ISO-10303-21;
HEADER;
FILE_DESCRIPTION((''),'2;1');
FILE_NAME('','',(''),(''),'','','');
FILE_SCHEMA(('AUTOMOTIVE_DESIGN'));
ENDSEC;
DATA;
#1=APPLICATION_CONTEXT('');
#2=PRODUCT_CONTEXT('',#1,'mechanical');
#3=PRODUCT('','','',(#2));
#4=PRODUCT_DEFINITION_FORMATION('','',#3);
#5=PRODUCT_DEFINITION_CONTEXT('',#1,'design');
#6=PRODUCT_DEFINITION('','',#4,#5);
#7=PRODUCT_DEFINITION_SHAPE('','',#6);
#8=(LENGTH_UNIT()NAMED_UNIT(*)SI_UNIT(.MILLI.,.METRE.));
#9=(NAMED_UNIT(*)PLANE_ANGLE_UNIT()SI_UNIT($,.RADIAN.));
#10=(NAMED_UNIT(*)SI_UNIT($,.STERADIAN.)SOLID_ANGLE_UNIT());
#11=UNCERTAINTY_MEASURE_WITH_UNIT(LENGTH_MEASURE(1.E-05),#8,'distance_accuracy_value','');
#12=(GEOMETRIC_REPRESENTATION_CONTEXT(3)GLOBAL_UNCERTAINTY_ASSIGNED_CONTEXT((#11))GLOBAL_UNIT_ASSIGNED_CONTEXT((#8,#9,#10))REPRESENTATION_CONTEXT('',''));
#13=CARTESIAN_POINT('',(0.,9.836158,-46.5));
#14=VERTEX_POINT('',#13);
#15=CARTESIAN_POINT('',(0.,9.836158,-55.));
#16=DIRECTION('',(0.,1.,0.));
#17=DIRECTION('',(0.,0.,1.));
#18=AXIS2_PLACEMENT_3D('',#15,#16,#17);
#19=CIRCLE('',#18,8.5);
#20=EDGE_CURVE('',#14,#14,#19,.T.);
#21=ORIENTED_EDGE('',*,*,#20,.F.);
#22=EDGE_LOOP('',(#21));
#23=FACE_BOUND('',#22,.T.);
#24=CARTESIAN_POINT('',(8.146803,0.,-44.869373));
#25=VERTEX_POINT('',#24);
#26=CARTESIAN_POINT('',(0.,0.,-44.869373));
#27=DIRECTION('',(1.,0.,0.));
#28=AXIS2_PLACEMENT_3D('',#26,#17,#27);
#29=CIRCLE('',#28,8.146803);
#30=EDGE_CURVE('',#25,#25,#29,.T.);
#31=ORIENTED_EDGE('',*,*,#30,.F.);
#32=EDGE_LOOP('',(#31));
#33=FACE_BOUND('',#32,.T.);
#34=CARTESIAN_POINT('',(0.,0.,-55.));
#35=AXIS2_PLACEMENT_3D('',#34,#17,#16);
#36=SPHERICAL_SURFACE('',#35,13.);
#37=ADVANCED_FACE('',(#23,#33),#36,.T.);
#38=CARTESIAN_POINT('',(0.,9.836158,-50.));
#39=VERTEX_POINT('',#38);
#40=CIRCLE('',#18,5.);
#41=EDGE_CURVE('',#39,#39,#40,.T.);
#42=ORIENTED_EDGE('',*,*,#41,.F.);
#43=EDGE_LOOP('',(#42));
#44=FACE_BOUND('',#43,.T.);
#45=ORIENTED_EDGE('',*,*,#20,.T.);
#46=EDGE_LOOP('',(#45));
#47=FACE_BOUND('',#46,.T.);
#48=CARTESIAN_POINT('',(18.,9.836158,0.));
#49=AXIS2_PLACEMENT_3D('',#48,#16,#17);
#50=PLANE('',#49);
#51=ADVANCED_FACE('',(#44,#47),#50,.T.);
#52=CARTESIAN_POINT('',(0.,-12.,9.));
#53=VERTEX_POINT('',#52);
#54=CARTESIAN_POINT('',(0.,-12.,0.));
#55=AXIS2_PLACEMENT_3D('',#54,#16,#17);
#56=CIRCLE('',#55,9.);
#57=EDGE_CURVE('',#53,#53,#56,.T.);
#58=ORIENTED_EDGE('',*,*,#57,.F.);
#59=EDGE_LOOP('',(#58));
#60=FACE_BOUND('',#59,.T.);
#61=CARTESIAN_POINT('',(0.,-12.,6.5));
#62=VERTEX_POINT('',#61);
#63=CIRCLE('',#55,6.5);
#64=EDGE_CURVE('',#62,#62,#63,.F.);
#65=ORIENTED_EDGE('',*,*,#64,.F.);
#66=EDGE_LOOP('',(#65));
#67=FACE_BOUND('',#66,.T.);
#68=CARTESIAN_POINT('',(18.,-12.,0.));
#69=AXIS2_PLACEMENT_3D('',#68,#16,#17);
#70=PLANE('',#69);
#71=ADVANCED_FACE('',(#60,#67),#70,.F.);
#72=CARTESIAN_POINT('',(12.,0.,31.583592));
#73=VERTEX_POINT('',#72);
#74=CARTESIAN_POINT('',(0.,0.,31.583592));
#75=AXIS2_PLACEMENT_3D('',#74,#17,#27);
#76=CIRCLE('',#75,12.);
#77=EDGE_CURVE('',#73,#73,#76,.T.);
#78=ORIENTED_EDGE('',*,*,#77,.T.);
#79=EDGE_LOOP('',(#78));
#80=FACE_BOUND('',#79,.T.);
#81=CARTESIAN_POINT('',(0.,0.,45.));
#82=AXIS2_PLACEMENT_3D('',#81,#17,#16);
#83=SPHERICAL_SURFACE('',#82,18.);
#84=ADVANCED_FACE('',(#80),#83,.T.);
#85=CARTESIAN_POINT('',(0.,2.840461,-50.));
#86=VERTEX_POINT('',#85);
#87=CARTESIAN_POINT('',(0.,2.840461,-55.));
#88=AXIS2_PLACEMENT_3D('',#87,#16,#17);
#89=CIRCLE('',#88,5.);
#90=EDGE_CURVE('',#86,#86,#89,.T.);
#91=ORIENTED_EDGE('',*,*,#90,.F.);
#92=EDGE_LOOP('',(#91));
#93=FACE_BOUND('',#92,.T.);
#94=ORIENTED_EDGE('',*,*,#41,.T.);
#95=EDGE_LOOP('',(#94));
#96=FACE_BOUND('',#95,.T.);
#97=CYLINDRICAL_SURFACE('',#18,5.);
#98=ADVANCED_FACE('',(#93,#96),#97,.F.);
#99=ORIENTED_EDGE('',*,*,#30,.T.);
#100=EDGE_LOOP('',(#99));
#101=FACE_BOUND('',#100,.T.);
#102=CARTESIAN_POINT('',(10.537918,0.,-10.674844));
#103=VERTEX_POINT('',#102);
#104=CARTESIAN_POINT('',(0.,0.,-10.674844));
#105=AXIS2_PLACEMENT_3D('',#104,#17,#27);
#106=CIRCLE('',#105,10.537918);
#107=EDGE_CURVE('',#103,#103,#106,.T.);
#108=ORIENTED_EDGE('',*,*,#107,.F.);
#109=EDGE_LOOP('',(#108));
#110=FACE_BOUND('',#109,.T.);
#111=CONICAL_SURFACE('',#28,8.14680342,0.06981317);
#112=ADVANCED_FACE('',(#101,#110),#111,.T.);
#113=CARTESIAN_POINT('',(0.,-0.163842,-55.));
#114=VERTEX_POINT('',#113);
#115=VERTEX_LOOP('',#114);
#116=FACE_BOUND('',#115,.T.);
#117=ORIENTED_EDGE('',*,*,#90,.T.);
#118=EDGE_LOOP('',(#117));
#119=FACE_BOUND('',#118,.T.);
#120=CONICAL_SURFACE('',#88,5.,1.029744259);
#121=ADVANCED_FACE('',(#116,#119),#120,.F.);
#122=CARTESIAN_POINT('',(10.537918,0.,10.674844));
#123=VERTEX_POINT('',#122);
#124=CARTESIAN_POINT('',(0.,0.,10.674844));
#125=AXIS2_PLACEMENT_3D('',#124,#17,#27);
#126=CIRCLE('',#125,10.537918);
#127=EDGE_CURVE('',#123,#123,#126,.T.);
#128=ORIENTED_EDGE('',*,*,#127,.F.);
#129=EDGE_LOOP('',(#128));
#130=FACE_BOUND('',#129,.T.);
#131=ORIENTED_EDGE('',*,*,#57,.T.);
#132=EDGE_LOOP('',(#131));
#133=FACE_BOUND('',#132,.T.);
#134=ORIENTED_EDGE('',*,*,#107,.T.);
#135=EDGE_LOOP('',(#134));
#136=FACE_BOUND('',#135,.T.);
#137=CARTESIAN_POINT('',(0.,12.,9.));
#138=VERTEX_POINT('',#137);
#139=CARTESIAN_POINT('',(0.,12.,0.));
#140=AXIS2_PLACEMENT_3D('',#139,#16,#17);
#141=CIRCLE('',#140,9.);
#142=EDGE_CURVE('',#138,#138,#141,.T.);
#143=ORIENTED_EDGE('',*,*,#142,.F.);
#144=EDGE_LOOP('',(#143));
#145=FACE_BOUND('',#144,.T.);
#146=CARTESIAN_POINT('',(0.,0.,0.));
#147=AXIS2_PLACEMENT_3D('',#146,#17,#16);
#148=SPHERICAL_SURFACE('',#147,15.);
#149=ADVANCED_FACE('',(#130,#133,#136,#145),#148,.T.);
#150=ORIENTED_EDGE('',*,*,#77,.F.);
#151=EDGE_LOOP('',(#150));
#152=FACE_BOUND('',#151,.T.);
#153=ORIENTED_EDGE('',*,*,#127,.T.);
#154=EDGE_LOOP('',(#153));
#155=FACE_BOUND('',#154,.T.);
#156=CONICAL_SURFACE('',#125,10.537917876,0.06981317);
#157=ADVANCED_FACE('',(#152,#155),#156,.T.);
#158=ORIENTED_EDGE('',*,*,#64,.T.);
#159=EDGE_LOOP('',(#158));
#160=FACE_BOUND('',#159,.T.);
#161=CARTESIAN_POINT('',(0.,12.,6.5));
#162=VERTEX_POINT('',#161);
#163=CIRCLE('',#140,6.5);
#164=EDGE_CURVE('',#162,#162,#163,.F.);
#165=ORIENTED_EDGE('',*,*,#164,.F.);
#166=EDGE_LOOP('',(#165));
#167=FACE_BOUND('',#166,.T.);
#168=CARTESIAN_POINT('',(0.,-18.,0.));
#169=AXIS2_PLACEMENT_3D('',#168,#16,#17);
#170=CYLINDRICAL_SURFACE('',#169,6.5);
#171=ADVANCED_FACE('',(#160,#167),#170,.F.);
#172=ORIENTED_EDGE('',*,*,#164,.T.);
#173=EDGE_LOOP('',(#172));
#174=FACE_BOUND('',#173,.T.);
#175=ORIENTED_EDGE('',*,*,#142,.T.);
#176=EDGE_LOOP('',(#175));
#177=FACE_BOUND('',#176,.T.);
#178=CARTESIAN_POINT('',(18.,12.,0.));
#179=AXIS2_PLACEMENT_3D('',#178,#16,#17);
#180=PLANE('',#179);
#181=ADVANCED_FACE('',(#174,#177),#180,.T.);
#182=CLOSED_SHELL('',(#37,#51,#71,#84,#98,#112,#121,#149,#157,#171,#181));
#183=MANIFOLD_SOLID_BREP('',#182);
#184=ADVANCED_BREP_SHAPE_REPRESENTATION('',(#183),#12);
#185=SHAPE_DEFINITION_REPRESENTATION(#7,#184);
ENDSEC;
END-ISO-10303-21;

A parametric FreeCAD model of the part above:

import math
import FreeCAD as App
import Part
import Sketcher
from FreeCAD import Vector
Q = App.Units.Quantity

doc = App.newDocument("Part")
params = doc.addObject("Spreadsheet::Sheet", "Params")
for row, (alias, value) in enumerate([
    ("sketch1_radius", "13 mm"),
    ("sketch1_radius2", "15.000001 mm"),
    ("sketch1_radius3", "18 mm"),
    ("sketch1_height", "131 mm"),
    ("revolution_angle", "360 deg"),
    ("sketch2_diameter", "13 mm"),
    ("sketch3_radius", "13.000001 mm"),
    ("sketch3_height", "13 mm"),
    ("sketch3_height2", "18 mm"),
    ("sketch3_height3", "17 mm"),
    ("sketch4_diameter", "10 mm"),
    ("hole_diameter", "10 mm"),
    ("hole_depth", "6.995697 mm"),
], start=1):
    params.set(f"A{row}", alias)
    params.set(f"B{row}", "=" + value)
    params.setAlias(f"B{row}", alias)

body = doc.addObject("PartDesign::Body", "Body")

# Sketch on YZ plane
sketch1 = body.newObject("Sketcher::SketchObject", "Sketch")
sketch1.AttachmentSupport = (doc.getObject("YZ_Plane"), [""])
sketch1.MapMode = "FlatFace"
sketch1.addGeometry([
    Part.LineSegment(Vector(0, 63, 0), Vector(0, -68, 0)),  # 0
    Part.ArcOfCircle(Part.Circle(Vector(0, -55, 0), Vector(0, 0, 1), 13), math.radians(-89.999998), math.radians(51.194606)),  # 1
    Part.LineSegment(Vector(8.146803, -44.869373, 0), Vector(10.537918, -10.674844, 0)),  # 2
    Part.ArcOfCircle(Part.Circle(Vector(-0.000001, 0, 0), Vector(0, 0, 1), 15.000001), math.radians(-45.36983), math.radians(45.36983)),  # 3
    Part.LineSegment(Vector(10.537918, 10.674844, 0), Vector(12, 31.583592, 0)),  # 4
    Part.ArcOfCircle(Part.Circle(Vector(0, 45, 0), Vector(0, 0, 1), 18), math.radians(-48.189684), math.radians(89.999998)),  # 5
], False)
sketch1.addConstraint([
    Sketcher.Constraint("Coincident", 0, 2, 1, 1),
    Sketcher.Constraint("Coincident", 1, 2, 2, 1),
    Sketcher.Constraint("Coincident", 2, 2, 3, 1),
    Sketcher.Constraint("Coincident", 3, 2, 4, 1),
    Sketcher.Constraint("Coincident", 4, 2, 5, 1),
    Sketcher.Constraint("Coincident", 5, 2, 0, 1),
    Sketcher.Constraint("Vertical", 0),
    Sketcher.Constraint("Coincident", 3, 3, -1, 1),
    Sketcher.Constraint("PointOnObject", 1, 3, -2),
    Sketcher.Constraint("PointOnObject", 5, 3, -2),
    Sketcher.Constraint("PointOnObject", 0, 2, -2),
    Sketcher.Constraint("Parallel", 2, 4),
    Sketcher.Constraint("Vertical", 2, 2, 3, 2),
    Sketcher.Constraint("Radius", 1, 13.0),
    Sketcher.Constraint("Radius", 3, 15.000001),
    Sketcher.Constraint("Radius", 5, 18.0),
    Sketcher.Constraint("DistanceY", 0, 2, 0, 1, 131.0),
    Sketcher.Constraint("Angle", 2, Q("85.999999 deg")),
    Sketcher.Constraint("DistanceY", 1, 3, -1, 1, 55.0),
    Sketcher.Constraint("DistanceX", -1, 1, 4, 2, 12.0),
])
sketch1.setExpression("Constraints[13]", "Params.sketch1_radius")
sketch1.setExpression("Constraints[14]", "Params.sketch1_radius2")
sketch1.setExpression("Constraints[15]", "Params.sketch1_radius3")
sketch1.setExpression("Constraints[16]", "Params.sketch1_height")
revolution = body.newObject("PartDesign::Revolution", "Revolution")
revolution.Profile = sketch1
revolution.ReferenceAxis = (sketch1, ["V_Axis"])
revolution.setExpression("Angle", "Params.revolution_angle")

# Sketch on XZ plane
sketch2 = body.newObject("Sketcher::SketchObject", "Sketch001")
sketch2.AttachmentSupport = (doc.getObject("XZ_Plane"), [""])
sketch2.MapMode = "FlatFace"
sketch2.addGeometry(Part.Circle(Vector(0, 0, 0), Vector(0, 0, 1), 6.5), False)
sketch2.addConstraint([
    Sketcher.Constraint("Coincident", 0, 3, -1, 1),
    Sketcher.Constraint("Diameter", 0, 13.0),
])
sketch2.setExpression("Constraints[1]", "Params.sketch2_diameter")
pocket1 = body.newObject("PartDesign::Pocket", "Pocket")
pocket1.Profile = sketch2
pocket1.Type = "ThroughAll"
pocket1.Midplane = True

# Sketch on YZ plane
sketch3 = body.newObject("Sketcher::SketchObject", "Sketch002")
sketch3.AttachmentSupport = (doc.getObject("YZ_Plane"), [""])
sketch3.MapMode = "FlatFace"
sketch3.addGeometry([
    Part.LineSegment(Vector(13.518506, -6.5, 0), Vector(13.518506, 6.5, 0)),  # 0
    Part.ArcOfCircle(Part.Circle(Vector(-0.000023, -0.000015, 0), Vector(0, 0, 1), 15.000027), math.radians(25.679301), math.radians(36.86989)),  # 1
    Part.LineSegment(Vector(12, 9, 0), Vector(12, -9, 0)),  # 2
    Part.ArcOfCircle(Part.Circle(Vector(-0.000023, 0.000015, 0), Vector(0, 0, 1), 15.000027), math.radians(-36.86989), math.radians(-25.679301)),  # 3
    Part.LineSegment(Vector(-12, -9, 0), Vector(-12, 9, 0)),  # 4
    Part.ArcOfCircle(Part.Circle(Vector(0.000023, -0.000015, 0), Vector(0, 0, 1), 15.000027), math.radians(143.13011), math.radians(154.320699)),  # 5
    Part.LineSegment(Vector(-13.518506, 6.5, 0), Vector(-13.518506, -6.5, 0)),  # 6
    Part.ArcOfCircle(Part.Circle(Vector(0.000023, 0.000015, 0), Vector(0, 0, 1), 15.000027), math.radians(-154.320699), math.radians(-143.13011)),  # 7
    Part.LineSegment(Vector(9.836158, -46.5, 0), Vector(9.836158, -63.5, 0)),  # 8
    Part.ArcOfCircle(Part.Circle(Vector(-0.000001, -55, 0), Vector(0, 0, 1), 13.000001), math.radians(-40.832214), math.radians(40.832214)),  # 9
], False)
sketch3.addConstraint([
    Sketcher.Constraint("Coincident", 0, 2, 1, 1),
    Sketcher.Constraint("Coincident", 1, 2, 2, 1),
    Sketcher.Constraint("Coincident", 2, 2, 3, 1),
    Sketcher.Constraint("Coincident", 3, 2, 0, 1),
    Sketcher.Constraint("Coincident", 4, 2, 5, 1),
    Sketcher.Constraint("Coincident", 5, 2, 6, 1),
    Sketcher.Constraint("Coincident", 6, 2, 7, 1),
    Sketcher.Constraint("Coincident", 7, 2, 4, 1),
    Sketcher.Constraint("Coincident", 8, 1, 9, 2),
    Sketcher.Constraint("Coincident", 9, 1, 8, 2),
    Sketcher.Constraint("Vertical", 0),
    Sketcher.Constraint("Vertical", 2),
    Sketcher.Constraint("Vertical", 4),
    Sketcher.Constraint("Vertical", 6),
    Sketcher.Constraint("Vertical", 8),
    Sketcher.Constraint("Equal", 1, 3),
    Sketcher.Constraint("Equal", 3, 5),
    Sketcher.Constraint("Equal", 5, 7),
    Sketcher.Constraint("Symmetric", 3, 3, 5, 3, -1, 1),
    Sketcher.Constraint("Symmetric", 1, 3, 7, 3, -1, 1),
    Sketcher.Constraint("Symmetric", 1, 3, 5, 3, -2),
    Sketcher.Constraint("PointOnObject", 9, 3, -2),
    Sketcher.Constraint("Horizontal", 1, 2, 4, 2),
    Sketcher.Constraint("Horizontal", 0, 2, 5, 2),
    Sketcher.Constraint("Radius", 9, 13.000001),
    Sketcher.Constraint("DistanceY", 0, 1, 0, 2, 13.0),
    Sketcher.Constraint("DistanceY", 2, 2, 2, 1, 18.0),
    Sketcher.Constraint("DistanceY", 8, 2, 8, 1, 17.0),
    Sketcher.Constraint("DistanceY", 9, 3, -1, 1, 55.0),
    Sketcher.Constraint("DistanceX", -1, 1, 1, 2, 12.0),
    Sketcher.Constraint("Radius", 1, 15.000027),
    Sketcher.Constraint("DistanceX", 3, 3, 0, 2, 13.518529),
])
sketch3.setExpression("Constraints[24]", "Params.sketch3_radius")
sketch3.setExpression("Constraints[25]", "Params.sketch3_height")
sketch3.setExpression("Constraints[26]", "Params.sketch3_height2")
sketch3.setExpression("Constraints[27]", "Params.sketch3_height3")
pocket2 = body.newObject("PartDesign::Pocket", "Pocket001")
pocket2.Profile = sketch3
pocket2.Type = "ThroughAll"
pocket2.Midplane = True

# Sketch on XZ plane
sketch4 = body.newObject("Sketcher::SketchObject", "Sketch003")
sketch4.AttachmentSupport = (doc.getObject("XZ_Plane"), [""])
sketch4.MapMode = "FlatFace"
sketch4.AttachmentOffset = App.Placement(Vector(0, 0, -9.836158), App.Rotation())
sketch4.addGeometry(Part.Circle(Vector(0, -55, 0), Vector(0, 0, 1), 5), False)
sketch4.addConstraint([
    Sketcher.Constraint("PointOnObject", 0, 3, -2),
    Sketcher.Constraint("Diameter", 0, 10.0),
    Sketcher.Constraint("DistanceY", 0, 3, -1, 1, 55.0),
])
sketch4.setExpression("Constraints[1]", "Params.sketch4_diameter")
doc.recompute()
hole = body.newObject("PartDesign::Hole", "Hole")
hole.Profile = sketch4
hole.ThreadType = "None"
hole.setExpression("Diameter", "Params.hole_diameter")
hole.DepthType = "Dimension"
hole.setExpression("Depth", "Params.hole_depth")
hole.DrillPoint = "Angled"
hole.DrillPointAngle = 118
hole.Reversed = True

doc.recompute()
